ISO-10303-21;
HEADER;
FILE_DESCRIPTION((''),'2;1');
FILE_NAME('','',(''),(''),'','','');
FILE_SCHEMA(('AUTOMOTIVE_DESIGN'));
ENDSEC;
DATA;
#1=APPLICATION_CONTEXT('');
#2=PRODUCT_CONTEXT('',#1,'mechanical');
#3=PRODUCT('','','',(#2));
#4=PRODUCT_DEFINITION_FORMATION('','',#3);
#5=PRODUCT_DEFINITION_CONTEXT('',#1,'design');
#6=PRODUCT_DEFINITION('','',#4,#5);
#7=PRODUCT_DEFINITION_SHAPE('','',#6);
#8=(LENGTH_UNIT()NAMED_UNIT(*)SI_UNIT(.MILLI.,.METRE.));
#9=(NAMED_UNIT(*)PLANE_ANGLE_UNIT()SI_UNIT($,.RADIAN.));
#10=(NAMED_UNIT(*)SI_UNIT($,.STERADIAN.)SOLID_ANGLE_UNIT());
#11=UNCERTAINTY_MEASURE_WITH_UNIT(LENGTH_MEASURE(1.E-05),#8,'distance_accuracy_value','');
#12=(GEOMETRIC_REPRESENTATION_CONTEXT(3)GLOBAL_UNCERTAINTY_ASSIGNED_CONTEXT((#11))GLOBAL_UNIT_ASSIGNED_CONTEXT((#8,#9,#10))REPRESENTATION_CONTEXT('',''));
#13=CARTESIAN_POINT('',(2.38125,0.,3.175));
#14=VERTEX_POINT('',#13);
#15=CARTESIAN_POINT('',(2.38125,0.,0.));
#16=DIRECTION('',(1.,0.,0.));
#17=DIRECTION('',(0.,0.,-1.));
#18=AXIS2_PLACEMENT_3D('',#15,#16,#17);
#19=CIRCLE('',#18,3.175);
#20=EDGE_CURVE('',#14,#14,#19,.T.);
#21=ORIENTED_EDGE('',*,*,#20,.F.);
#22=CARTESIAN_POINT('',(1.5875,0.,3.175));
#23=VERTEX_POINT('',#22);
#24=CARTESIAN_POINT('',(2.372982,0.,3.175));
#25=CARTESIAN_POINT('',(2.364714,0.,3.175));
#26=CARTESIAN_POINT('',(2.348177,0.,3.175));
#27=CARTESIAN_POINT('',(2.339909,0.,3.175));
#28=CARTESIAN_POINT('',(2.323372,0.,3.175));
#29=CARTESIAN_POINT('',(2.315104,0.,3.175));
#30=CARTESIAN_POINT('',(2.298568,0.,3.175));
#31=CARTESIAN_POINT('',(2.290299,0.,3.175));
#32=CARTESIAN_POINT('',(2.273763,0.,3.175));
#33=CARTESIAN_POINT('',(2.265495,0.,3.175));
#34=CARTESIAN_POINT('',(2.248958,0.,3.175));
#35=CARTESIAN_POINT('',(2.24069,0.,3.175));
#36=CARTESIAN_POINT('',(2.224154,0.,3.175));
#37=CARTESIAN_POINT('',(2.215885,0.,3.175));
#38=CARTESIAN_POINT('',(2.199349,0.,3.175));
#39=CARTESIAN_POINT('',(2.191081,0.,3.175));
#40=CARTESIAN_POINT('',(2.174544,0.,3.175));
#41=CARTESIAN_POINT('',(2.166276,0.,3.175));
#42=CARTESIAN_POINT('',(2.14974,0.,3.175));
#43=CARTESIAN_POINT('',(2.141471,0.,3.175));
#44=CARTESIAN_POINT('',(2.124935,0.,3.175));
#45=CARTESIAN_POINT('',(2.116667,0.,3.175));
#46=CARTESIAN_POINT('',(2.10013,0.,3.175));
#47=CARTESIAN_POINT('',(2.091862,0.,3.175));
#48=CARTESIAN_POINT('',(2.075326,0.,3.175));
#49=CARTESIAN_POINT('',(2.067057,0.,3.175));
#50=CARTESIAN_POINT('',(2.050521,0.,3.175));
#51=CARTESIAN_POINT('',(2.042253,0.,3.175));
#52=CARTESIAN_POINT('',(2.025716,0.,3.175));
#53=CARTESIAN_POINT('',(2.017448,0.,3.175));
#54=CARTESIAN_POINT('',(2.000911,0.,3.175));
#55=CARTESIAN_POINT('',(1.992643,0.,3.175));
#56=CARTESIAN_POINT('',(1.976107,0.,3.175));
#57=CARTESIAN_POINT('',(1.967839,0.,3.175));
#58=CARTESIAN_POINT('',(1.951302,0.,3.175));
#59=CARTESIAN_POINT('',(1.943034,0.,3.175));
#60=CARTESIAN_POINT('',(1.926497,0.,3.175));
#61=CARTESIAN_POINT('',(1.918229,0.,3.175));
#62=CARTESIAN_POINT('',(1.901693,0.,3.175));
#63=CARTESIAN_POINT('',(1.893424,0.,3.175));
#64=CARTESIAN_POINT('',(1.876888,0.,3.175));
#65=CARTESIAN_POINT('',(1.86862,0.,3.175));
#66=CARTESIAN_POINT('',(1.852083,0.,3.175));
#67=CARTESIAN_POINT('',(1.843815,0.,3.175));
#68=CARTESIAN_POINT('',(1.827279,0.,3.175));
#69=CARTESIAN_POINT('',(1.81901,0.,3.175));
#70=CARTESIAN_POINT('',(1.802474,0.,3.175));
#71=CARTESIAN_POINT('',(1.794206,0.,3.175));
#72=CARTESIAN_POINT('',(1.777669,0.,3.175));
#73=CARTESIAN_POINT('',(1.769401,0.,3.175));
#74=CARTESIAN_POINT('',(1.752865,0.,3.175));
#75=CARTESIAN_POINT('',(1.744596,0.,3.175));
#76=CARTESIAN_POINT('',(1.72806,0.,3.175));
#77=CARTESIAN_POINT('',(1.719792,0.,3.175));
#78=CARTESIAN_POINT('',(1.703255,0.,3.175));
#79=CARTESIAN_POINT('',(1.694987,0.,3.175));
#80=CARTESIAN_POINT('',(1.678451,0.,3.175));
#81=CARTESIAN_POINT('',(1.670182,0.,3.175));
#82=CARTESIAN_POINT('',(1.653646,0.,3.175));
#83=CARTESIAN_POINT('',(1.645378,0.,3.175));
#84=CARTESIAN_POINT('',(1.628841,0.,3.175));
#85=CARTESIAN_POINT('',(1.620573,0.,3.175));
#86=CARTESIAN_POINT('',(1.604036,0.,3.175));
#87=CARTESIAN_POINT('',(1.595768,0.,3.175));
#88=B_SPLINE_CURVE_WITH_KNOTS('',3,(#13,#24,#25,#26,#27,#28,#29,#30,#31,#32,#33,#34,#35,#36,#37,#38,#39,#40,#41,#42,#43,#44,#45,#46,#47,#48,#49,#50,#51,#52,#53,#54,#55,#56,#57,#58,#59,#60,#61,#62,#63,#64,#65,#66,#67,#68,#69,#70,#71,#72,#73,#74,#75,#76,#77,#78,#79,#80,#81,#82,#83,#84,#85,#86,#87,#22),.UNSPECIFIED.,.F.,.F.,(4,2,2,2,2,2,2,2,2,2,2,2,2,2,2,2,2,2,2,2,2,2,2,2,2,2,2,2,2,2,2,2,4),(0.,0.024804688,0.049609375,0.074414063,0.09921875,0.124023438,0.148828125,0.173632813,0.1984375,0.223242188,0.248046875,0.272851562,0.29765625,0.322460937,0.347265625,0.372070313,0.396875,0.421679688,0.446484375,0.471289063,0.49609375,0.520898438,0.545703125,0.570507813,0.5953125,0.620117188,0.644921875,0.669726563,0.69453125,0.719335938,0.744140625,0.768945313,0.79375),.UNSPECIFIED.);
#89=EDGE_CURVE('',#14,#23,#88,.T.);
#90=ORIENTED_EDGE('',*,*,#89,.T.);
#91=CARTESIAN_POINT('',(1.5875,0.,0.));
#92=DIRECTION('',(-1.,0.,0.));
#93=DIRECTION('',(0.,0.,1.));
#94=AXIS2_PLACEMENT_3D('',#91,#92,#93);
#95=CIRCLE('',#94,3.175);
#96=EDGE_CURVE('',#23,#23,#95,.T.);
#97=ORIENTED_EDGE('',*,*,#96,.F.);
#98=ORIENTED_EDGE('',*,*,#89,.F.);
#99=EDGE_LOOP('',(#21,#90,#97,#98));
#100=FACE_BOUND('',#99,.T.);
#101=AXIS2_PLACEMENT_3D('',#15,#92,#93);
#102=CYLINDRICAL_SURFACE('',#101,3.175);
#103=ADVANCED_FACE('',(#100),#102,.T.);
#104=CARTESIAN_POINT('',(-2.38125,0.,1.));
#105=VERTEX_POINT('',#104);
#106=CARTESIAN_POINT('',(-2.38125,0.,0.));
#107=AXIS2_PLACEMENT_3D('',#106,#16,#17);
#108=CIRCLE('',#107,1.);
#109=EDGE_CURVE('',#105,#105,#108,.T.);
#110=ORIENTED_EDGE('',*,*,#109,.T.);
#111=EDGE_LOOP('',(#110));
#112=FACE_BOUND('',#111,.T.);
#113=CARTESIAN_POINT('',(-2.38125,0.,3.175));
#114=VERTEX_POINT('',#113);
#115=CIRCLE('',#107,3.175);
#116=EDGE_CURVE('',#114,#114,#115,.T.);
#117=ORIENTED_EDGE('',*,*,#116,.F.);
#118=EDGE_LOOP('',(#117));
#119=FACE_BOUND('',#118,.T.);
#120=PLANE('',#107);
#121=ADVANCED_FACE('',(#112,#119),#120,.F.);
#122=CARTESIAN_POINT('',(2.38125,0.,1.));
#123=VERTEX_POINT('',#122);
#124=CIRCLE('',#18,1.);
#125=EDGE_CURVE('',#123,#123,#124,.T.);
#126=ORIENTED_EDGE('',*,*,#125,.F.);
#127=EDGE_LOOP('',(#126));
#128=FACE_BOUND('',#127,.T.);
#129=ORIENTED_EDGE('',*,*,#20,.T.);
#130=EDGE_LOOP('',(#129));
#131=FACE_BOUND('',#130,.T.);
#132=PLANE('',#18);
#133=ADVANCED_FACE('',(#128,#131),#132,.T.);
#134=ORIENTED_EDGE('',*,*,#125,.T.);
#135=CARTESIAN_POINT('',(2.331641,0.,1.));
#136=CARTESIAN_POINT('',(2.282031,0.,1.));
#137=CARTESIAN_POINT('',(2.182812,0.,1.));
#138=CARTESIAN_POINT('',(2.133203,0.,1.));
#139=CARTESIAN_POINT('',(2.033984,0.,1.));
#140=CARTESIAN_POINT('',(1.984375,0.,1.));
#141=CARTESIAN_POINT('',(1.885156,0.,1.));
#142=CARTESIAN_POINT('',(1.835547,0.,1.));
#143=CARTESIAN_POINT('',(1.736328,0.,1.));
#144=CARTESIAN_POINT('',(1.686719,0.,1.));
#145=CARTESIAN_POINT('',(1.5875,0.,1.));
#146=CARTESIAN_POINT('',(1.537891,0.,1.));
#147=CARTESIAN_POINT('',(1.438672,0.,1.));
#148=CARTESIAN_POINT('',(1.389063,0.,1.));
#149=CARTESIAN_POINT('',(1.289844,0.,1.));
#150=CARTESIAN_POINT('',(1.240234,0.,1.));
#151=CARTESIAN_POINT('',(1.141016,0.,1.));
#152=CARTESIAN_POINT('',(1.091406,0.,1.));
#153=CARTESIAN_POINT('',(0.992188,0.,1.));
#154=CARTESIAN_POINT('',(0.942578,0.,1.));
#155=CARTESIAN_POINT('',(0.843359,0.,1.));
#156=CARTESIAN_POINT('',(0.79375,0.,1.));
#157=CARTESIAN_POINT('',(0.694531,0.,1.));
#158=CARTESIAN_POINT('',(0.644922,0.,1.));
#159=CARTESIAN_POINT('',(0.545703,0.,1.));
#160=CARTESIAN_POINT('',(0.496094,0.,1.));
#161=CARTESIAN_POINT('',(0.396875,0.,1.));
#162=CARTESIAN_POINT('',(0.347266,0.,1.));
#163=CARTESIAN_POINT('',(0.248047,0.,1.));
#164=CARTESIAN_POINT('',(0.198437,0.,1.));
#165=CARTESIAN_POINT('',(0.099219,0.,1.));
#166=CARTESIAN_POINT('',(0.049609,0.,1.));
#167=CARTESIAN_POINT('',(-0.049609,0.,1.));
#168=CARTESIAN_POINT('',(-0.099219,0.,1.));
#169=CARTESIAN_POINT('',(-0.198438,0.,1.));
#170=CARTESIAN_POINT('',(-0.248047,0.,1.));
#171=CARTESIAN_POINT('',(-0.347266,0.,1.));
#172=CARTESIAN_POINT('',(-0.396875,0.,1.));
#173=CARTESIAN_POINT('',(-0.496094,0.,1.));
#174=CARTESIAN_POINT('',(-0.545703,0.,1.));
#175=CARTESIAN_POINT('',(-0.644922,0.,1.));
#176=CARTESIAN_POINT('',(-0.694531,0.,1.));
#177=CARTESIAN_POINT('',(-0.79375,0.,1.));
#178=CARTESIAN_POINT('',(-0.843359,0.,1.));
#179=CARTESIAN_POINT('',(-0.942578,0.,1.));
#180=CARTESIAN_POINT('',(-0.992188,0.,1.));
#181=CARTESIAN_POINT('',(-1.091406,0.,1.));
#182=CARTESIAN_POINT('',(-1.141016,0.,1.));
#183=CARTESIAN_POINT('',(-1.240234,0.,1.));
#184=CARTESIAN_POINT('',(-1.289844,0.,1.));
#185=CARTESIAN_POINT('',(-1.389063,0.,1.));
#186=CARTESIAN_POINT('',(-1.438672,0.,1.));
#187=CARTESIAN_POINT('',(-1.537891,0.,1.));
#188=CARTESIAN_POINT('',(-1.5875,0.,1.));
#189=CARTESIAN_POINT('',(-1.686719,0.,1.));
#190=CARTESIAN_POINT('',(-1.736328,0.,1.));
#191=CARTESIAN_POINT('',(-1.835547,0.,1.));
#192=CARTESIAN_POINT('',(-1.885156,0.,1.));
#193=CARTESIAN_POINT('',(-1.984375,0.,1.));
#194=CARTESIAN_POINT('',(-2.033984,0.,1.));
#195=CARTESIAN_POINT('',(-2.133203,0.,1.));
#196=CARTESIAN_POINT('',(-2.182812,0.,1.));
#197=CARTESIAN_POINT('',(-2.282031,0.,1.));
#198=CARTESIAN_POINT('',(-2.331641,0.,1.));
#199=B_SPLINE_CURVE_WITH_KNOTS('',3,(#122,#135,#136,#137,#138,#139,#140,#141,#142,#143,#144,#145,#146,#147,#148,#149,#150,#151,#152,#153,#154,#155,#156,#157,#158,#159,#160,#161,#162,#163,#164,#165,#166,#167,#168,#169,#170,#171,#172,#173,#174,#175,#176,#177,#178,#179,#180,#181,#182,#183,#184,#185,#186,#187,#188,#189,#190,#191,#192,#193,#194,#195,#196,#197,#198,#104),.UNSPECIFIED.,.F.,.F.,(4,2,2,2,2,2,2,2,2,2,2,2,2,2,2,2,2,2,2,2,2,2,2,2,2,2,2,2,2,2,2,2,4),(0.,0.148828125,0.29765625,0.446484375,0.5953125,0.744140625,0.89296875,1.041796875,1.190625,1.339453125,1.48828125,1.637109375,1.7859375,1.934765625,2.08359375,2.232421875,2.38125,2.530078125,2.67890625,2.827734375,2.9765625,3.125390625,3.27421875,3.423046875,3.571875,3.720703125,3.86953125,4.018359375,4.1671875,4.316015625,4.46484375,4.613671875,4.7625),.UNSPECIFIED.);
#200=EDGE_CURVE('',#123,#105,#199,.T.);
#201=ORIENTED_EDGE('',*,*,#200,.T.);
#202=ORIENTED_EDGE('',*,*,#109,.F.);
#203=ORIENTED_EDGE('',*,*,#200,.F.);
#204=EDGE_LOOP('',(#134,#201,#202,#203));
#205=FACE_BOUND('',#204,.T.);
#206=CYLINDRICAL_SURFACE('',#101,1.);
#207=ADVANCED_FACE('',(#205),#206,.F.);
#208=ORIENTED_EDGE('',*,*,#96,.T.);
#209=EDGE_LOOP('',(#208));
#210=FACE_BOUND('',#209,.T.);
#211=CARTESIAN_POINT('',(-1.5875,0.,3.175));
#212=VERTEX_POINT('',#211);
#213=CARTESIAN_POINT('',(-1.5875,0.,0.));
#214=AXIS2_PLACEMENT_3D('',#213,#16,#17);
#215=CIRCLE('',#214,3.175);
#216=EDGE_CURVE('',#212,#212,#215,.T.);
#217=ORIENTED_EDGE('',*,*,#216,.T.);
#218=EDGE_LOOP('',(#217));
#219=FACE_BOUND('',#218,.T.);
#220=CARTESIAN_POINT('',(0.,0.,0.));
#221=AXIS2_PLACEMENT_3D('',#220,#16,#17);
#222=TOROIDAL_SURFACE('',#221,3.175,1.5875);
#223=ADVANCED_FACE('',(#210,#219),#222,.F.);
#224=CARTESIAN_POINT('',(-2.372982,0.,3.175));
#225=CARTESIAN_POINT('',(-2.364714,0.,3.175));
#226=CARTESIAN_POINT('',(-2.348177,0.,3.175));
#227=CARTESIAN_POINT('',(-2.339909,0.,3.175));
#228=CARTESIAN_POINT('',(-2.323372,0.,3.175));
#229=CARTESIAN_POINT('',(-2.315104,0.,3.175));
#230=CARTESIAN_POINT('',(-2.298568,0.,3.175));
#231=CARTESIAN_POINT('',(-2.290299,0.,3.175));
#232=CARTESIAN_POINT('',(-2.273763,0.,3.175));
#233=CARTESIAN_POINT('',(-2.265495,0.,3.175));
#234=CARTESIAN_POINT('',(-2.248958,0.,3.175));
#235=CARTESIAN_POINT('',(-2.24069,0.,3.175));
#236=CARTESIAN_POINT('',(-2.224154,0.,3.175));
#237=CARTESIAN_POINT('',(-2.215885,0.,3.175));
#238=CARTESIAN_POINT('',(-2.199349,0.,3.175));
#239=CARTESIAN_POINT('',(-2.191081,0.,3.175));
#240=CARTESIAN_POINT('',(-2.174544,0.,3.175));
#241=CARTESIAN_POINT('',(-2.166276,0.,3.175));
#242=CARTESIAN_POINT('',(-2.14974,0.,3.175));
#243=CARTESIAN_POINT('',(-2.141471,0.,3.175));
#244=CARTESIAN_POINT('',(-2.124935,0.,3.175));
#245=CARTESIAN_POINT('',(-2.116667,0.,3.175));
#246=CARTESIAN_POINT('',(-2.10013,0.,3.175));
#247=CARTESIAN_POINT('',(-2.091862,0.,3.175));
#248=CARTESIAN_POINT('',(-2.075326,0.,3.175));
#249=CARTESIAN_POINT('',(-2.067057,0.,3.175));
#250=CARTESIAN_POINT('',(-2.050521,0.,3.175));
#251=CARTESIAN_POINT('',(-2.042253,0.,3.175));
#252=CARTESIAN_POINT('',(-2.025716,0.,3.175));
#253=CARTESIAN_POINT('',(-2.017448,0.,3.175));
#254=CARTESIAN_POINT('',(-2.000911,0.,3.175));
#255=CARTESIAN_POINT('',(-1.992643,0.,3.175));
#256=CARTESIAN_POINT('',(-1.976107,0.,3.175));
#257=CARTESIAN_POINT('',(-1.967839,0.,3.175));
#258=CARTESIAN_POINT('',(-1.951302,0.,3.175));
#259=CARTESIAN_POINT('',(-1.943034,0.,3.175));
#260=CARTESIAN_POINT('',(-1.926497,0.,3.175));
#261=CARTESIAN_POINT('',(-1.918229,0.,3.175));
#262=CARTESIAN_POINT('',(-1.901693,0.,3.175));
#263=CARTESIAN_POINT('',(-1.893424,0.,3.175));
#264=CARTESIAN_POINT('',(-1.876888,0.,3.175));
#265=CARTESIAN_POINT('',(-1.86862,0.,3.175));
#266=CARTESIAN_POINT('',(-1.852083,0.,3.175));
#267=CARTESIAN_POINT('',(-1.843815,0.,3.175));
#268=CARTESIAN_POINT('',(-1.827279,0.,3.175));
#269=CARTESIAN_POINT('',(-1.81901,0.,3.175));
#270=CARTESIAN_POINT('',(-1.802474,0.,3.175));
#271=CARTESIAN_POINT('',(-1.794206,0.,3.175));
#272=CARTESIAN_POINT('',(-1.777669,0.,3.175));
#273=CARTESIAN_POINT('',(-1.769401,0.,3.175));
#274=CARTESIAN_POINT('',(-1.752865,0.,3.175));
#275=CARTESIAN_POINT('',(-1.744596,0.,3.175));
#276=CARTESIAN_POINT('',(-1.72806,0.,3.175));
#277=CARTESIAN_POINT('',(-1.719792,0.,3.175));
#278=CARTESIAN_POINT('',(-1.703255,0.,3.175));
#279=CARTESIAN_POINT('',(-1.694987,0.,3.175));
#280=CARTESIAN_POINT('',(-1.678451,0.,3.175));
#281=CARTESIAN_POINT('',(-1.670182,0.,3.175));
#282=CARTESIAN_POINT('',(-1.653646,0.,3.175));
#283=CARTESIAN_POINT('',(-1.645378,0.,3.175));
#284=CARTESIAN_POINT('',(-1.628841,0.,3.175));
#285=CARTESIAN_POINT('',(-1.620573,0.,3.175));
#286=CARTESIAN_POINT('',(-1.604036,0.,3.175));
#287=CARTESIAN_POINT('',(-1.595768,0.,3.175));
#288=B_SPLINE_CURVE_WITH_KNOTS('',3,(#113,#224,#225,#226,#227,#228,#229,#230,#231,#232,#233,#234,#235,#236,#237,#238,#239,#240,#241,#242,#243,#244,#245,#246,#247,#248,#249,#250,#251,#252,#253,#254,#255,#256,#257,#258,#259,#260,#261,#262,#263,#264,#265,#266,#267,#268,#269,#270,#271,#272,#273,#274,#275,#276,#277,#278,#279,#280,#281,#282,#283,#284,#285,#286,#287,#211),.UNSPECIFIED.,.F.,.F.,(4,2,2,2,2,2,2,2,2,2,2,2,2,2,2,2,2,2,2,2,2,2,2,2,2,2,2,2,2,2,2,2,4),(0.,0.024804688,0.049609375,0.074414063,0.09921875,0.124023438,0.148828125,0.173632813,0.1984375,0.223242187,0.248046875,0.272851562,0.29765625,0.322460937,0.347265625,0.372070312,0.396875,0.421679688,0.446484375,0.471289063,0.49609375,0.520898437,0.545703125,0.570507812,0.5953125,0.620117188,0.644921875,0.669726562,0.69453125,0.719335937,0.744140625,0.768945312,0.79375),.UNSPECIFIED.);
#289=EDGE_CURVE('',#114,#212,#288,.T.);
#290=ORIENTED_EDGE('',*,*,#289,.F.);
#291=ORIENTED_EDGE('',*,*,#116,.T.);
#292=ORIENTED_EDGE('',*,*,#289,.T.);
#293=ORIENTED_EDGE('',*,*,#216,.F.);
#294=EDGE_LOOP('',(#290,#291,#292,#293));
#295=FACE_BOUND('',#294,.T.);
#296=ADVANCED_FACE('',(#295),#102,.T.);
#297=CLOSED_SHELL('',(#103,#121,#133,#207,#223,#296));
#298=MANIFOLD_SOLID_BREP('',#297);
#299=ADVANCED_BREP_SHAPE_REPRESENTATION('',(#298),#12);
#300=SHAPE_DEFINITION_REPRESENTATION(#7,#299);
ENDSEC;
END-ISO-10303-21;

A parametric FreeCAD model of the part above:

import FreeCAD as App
import Part
import Sketcher

V = App.Vector
Q = App.Units.Quantity

doc = App.newDocument("Part")
body = doc.addObject("PartDesign::Body", "Body")

# Sketch on YZ plane
sketch1 = body.newObject("Sketcher::SketchObject", "Sketch")
sketch1.AttachmentSupport = (doc.getObject("YZ_Plane"), [""])
sketch1.MapMode = "FlatFace"
sketch1.addGeometry(Part.Circle(V(0, 0, 0), V(0, 0, 1), 3.2), False)
sketch1.addGeometry(Part.Circle(V(0, 0, 0), V(0, 0, 1), 1), False)
sketch1.addConstraint(Sketcher.Constraint("Coincident", 0, 3, -1, 1))
sketch1.addConstraint(Sketcher.Constraint("Coincident", 1, 3, -1, 1))
sketch1.addConstraint(Sketcher.Constraint("Diameter", 0, Q("0.25 in")))
sketch1.addConstraint(Sketcher.Constraint("Diameter", 1, 2.0))
pad1 = body.newObject("PartDesign::Pad", "Pad")
pad1.Profile = sketch1
pad1.Length = Q("0.1875 in")
pad1.Midplane = True

# Sketch on XZ plane
sketch2 = body.newObject("Sketcher::SketchObject", "Sketch001")
sketch2.AttachmentSupport = (doc.getObject("XZ_Plane"), [""])
sketch2.MapMode = "FlatFace"
sketch2.addGeometry(Part.Circle(V(0, 3.2, 0), V(0, 0, 1), 1.6), False)
sketch2.addConstraint(Sketcher.Constraint("PointOnObject", 0, 3, -2))
sketch2.addConstraint(Sketcher.Constraint("Diameter", 0, Q("0.125 in")))
sketch2.addConstraint(Sketcher.Constraint("DistanceY", -1, 1, 0, 3, Q("0.125 in")))
groove = body.newObject("PartDesign::Groove", "Groove")
groove.Profile = sketch2
groove.ReferenceAxis = (sketch2, ["H_Axis"])
groove.Angle = 360

doc.recompute()
